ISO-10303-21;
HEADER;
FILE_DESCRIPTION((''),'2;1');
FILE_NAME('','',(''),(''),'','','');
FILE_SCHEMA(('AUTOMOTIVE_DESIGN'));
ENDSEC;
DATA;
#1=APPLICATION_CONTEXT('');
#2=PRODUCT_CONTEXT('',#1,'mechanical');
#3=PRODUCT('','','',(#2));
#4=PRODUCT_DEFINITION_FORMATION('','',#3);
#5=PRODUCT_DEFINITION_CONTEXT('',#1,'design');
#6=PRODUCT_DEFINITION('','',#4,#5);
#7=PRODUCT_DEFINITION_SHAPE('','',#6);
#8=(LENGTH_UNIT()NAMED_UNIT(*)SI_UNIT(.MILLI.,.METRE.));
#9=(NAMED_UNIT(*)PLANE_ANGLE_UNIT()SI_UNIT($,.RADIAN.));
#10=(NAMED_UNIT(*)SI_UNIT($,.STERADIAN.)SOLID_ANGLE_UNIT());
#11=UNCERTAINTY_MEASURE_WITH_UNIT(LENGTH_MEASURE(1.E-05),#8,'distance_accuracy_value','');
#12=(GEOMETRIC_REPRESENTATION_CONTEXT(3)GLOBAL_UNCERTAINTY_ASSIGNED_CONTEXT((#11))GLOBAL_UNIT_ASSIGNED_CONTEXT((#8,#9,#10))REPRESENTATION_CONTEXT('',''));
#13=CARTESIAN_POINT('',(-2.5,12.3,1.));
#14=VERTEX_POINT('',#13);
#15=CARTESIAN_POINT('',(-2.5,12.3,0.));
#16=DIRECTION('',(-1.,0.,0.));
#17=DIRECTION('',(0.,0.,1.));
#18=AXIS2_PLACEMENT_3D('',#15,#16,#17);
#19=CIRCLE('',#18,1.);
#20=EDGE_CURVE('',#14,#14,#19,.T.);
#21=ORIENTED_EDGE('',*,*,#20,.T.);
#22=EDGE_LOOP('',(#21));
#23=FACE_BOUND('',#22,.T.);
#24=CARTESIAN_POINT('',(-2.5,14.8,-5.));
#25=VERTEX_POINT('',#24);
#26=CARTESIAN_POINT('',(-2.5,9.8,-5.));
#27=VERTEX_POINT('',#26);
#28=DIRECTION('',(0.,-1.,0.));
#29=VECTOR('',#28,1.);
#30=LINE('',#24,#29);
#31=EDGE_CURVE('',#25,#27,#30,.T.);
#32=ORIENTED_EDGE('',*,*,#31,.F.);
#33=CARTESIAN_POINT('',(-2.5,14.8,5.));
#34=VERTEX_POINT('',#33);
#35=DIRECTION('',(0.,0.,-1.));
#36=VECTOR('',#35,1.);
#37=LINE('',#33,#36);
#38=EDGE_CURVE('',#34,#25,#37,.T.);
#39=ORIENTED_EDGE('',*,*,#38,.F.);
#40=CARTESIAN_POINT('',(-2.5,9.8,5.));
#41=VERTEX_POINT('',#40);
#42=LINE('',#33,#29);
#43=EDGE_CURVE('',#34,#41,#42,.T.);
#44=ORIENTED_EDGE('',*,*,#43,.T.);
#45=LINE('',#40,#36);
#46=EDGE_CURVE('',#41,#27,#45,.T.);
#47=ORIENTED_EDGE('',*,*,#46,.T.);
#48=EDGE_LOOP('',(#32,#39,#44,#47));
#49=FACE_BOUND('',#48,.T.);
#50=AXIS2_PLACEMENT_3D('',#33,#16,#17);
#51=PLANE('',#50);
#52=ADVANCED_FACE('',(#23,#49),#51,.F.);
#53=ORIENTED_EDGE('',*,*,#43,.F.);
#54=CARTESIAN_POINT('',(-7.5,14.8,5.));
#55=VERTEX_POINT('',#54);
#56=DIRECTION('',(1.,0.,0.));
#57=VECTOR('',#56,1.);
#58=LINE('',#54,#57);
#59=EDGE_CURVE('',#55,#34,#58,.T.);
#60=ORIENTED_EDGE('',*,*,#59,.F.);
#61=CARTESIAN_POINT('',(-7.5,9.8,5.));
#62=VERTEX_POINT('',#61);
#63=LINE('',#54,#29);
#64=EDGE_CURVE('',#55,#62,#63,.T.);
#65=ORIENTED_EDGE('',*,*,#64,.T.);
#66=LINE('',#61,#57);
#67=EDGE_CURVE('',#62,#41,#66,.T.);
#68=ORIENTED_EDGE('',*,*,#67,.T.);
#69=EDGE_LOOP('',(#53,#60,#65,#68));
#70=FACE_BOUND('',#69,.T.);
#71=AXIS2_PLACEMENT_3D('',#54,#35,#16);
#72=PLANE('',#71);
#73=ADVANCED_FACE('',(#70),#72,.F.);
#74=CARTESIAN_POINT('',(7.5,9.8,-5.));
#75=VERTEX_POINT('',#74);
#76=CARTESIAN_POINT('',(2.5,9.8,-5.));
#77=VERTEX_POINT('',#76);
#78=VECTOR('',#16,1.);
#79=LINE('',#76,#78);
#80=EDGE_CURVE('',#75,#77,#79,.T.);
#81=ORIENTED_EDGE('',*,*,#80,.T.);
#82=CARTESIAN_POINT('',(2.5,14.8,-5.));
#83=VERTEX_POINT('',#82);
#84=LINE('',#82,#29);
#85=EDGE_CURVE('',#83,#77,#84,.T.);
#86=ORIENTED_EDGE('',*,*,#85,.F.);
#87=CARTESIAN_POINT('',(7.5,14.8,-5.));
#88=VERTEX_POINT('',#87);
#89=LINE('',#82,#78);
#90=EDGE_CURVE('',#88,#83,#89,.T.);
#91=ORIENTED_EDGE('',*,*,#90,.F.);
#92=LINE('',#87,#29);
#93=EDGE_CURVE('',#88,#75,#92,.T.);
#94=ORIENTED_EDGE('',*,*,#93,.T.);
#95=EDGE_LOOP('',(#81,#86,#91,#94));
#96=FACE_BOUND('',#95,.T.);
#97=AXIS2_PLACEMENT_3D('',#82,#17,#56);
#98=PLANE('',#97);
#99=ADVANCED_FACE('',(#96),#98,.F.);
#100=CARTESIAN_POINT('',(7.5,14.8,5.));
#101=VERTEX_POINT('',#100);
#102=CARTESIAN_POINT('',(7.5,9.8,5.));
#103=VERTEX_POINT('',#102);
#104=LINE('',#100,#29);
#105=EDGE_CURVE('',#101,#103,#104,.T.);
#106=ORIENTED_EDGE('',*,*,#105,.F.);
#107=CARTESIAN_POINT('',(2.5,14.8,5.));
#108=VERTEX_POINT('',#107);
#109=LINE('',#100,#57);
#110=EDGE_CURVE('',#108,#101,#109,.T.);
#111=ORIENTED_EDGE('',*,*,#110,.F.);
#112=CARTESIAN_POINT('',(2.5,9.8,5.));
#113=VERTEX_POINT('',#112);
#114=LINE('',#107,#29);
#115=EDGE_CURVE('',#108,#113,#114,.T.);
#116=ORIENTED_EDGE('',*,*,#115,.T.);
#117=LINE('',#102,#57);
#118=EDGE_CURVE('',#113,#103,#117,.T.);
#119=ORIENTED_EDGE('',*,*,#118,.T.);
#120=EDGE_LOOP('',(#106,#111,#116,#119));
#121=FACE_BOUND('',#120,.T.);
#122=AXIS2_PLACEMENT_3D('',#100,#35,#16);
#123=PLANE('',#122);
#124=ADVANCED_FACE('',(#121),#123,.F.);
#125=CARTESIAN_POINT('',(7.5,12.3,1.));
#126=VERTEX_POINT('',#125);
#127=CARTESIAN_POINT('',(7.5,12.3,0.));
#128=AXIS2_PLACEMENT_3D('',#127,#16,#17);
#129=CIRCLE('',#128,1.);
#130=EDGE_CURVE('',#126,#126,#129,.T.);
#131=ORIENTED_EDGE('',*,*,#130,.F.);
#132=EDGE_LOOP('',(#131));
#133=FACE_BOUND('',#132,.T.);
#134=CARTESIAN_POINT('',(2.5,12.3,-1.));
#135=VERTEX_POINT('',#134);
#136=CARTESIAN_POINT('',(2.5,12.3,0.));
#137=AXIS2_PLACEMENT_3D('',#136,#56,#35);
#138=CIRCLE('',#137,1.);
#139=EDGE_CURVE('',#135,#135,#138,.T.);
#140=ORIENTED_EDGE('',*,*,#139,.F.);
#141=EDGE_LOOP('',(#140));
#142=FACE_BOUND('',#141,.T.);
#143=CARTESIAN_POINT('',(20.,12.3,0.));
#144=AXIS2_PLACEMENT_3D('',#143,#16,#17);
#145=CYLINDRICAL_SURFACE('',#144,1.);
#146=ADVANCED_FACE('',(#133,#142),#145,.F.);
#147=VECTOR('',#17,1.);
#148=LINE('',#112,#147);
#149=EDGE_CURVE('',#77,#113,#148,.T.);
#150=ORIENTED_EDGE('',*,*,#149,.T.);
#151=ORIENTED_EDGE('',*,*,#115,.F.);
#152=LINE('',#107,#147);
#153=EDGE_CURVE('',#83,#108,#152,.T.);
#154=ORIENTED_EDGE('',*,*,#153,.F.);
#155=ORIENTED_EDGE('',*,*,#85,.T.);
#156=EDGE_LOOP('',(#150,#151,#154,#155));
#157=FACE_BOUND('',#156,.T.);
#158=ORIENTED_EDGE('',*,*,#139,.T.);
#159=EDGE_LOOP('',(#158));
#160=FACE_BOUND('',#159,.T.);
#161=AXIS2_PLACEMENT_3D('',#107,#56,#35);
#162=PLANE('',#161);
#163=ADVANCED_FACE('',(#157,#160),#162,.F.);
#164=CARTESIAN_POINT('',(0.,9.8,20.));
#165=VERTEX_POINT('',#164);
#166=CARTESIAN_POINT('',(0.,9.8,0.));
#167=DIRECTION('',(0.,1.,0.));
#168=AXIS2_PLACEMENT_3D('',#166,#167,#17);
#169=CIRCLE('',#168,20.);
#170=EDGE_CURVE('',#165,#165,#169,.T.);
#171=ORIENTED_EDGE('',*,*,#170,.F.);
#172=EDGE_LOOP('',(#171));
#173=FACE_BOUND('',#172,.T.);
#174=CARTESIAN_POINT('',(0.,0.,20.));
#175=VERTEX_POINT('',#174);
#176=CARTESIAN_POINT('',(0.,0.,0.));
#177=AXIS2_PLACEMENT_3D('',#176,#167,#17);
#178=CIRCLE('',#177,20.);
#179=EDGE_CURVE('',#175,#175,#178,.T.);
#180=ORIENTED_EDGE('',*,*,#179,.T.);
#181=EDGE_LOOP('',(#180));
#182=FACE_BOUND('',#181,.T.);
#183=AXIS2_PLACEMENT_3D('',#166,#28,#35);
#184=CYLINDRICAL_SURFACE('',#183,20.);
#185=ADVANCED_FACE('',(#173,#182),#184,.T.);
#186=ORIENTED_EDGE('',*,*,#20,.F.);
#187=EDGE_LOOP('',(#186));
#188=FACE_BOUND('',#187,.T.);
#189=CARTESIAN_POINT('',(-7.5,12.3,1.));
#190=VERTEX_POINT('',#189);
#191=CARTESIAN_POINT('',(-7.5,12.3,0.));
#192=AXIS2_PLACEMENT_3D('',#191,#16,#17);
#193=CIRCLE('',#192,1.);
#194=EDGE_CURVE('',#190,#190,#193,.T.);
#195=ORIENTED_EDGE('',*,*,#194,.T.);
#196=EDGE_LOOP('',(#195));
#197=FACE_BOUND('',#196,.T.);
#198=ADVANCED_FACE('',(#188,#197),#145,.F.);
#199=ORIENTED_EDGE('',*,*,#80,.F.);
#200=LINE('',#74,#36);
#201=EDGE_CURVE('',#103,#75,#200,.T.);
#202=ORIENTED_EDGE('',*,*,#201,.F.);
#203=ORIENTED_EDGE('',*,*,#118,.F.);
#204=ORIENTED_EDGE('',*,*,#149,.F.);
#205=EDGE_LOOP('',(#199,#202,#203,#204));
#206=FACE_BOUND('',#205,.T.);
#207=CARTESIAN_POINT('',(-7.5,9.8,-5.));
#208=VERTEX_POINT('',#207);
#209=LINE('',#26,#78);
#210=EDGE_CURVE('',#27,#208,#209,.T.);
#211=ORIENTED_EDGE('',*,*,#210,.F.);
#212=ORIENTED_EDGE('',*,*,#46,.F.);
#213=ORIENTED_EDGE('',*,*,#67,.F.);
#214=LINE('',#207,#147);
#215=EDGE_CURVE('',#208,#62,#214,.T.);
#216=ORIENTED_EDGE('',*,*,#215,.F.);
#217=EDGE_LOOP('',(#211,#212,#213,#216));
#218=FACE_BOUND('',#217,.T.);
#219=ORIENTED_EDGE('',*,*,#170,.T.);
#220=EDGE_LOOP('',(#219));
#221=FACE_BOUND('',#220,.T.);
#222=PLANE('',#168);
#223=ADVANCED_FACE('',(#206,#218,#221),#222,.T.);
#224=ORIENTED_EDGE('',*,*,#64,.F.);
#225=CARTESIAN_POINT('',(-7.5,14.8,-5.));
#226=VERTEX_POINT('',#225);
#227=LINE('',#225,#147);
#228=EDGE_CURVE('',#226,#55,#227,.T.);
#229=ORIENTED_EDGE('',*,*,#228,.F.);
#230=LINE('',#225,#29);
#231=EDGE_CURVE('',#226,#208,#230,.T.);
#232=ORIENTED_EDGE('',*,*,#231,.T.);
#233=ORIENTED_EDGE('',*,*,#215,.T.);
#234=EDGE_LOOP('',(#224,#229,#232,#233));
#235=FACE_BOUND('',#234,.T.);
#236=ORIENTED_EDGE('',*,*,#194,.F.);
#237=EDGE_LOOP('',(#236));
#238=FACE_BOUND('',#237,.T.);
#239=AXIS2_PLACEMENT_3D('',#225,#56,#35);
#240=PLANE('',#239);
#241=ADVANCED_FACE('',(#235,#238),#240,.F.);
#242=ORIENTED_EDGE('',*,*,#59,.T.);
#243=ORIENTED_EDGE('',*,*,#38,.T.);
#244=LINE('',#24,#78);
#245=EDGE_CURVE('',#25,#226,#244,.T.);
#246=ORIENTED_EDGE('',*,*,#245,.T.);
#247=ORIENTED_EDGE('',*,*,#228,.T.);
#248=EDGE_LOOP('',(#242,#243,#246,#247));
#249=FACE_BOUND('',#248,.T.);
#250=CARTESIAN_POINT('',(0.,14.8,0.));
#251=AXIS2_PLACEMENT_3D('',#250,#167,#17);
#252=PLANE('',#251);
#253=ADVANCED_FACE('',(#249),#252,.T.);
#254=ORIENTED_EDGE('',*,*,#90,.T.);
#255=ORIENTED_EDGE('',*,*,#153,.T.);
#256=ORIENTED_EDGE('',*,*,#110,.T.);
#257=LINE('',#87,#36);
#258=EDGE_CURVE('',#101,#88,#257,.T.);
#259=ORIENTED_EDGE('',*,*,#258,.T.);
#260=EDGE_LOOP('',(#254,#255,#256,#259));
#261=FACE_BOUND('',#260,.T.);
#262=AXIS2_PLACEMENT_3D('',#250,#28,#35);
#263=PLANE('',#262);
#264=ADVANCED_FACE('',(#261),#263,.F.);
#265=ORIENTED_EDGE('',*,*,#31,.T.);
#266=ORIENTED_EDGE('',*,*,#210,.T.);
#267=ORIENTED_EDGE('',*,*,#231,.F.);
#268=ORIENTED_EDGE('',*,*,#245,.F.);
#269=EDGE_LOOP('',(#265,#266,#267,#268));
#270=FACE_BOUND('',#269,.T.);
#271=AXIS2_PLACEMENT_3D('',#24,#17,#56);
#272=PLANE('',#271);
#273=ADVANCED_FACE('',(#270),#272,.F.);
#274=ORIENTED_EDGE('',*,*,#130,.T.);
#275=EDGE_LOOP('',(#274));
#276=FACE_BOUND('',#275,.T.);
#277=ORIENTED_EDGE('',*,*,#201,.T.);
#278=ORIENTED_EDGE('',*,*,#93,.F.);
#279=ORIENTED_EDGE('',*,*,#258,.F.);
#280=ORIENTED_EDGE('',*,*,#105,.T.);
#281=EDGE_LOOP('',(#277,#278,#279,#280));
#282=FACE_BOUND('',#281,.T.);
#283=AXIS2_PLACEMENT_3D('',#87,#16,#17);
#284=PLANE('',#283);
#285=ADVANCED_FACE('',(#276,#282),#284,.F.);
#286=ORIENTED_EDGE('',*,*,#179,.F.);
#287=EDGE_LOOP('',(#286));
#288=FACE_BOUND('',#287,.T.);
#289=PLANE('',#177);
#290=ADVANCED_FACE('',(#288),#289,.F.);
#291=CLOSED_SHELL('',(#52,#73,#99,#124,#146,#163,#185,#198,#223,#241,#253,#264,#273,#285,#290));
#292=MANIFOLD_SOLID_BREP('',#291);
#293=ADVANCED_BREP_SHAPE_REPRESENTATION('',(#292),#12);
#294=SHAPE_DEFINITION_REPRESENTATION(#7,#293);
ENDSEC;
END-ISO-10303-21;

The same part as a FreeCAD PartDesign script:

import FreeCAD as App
import Part
import Sketcher

V = App.Vector
Q = App.Units.Quantity


def add_polygon(sketch, points):
    """Adds a closed chain of lines whose ends are joined by coincident constraints."""
    first, n = sketch.GeometryCount, len(points)
    for a, b in zip(points, points[1:] + points[:1]):
        sketch.addGeometry(Part.LineSegment(App.Vector(*a, 0), App.Vector(*b, 0)), False)
    for i in range(n):
        sketch.addConstraint(Sketcher.Constraint("Coincident", first + i, 2, first + (i + 1) % n, 1))

doc = App.newDocument("Part")
body = doc.addObject("PartDesign::Body", "Body")

# Sketch on XZ plane
sketch1 = body.newObject("Sketcher::SketchObject", "Sketch")
sketch1.AttachmentSupport = (doc.getObject("XZ_Plane"), [""])
sketch1.MapMode = "FlatFace"
sketch1.addGeometry(Part.Circle(V(0, 0, 0), V(0, 0, 1), 20), False)
sketch1.addConstraint([
    Sketcher.Constraint("Coincident", 0, 3, -1, 1),
    Sketcher.Constraint("Diameter", 0, Q("40 mm")),
])
pad1 = body.newObject("PartDesign::Pad", "Pad")
pad1.Profile = sketch1
pad1.Length = 9.8
pad1.Reversed = True

# Sketch on XZ plane
sketch2 = body.newObject("Sketcher::SketchObject", "Sketch001")
sketch2.AttachmentSupport = (doc.getObject("XZ_Plane"), [""])
sketch2.MapMode = "FlatFace"
sketch2.AttachmentOffset = App.Placement(V(0, 0, -9.8), App.Rotation())
add_polygon(sketch2, [(2, -5), (2, 5), (8, 5), (8, -5)])  # lines 0-3
add_polygon(sketch2, [(-8, -5), (-8, 5), (-2, 5), (-2, -5)])  # lines 4-7
sketch2.addConstraint([
    Sketcher.Constraint("Vertical", 0),
    Sketcher.Constraint("Horizontal", 1),
    Sketcher.Constraint("Vertical", 2),
    Sketcher.Constraint("Horizontal", 3),
    Sketcher.Constraint("Vertical", 4),
    Sketcher.Constraint("Horizontal", 5),
    Sketcher.Constraint("Vertical", 6),
    Sketcher.Constraint("Horizontal", 7),
    Sketcher.Constraint("Symmetric", 2, 2, 4, 2, -1, 1),
    Sketcher.Constraint("Symmetric", 0, 2, 6, 2, -1, 1),
    Sketcher.Constraint("Horizontal", 1, 2, 4, 2),
    Sketcher.Constraint("DistanceX", 1, 1, 1, 2, Q("5 mm")),
    Sketcher.Constraint("DistanceY", 0, 1, 0, 2, Q("10 mm")),
    Sketcher.Constraint("DistanceX", 4, 2, 0, 2, Q("10 mm")),
])
pad2 = body.newObject("PartDesign::Pad", "Pad001")
pad2.Profile = sketch2
pad2.Length = 5
pad2.Reversed = True

# Sketch on YZ plane
sketch3 = body.newObject("Sketcher::SketchObject", "Sketch002")
sketch3.AttachmentSupport = (doc.getObject("YZ_Plane"), [""])
sketch3.MapMode = "FlatFace"
sketch3.AttachmentOffset = App.Placement(V(0, 0, -7.5), App.Rotation())
sketch3.addGeometry(Part.Circle(V(12.3, 0, 0), V(0, 0, 1), 1), False)
sketch3.addConstraint([
    Sketcher.Constraint("PointOnObject", 0, 3, -1),
    Sketcher.Constraint("Diameter", 0, Q("2 mm")),
    Sketcher.Constraint("DistanceX", -1, 1, 0, 3, Q("12.3 mm")),
])
pocket1 = body.newObject("PartDesign::Pocket", "Pocket")
pocket1.Profile = sketch3
pocket1.Type = "ThroughAll"
pocket1.Reversed = True

doc.recompute()
